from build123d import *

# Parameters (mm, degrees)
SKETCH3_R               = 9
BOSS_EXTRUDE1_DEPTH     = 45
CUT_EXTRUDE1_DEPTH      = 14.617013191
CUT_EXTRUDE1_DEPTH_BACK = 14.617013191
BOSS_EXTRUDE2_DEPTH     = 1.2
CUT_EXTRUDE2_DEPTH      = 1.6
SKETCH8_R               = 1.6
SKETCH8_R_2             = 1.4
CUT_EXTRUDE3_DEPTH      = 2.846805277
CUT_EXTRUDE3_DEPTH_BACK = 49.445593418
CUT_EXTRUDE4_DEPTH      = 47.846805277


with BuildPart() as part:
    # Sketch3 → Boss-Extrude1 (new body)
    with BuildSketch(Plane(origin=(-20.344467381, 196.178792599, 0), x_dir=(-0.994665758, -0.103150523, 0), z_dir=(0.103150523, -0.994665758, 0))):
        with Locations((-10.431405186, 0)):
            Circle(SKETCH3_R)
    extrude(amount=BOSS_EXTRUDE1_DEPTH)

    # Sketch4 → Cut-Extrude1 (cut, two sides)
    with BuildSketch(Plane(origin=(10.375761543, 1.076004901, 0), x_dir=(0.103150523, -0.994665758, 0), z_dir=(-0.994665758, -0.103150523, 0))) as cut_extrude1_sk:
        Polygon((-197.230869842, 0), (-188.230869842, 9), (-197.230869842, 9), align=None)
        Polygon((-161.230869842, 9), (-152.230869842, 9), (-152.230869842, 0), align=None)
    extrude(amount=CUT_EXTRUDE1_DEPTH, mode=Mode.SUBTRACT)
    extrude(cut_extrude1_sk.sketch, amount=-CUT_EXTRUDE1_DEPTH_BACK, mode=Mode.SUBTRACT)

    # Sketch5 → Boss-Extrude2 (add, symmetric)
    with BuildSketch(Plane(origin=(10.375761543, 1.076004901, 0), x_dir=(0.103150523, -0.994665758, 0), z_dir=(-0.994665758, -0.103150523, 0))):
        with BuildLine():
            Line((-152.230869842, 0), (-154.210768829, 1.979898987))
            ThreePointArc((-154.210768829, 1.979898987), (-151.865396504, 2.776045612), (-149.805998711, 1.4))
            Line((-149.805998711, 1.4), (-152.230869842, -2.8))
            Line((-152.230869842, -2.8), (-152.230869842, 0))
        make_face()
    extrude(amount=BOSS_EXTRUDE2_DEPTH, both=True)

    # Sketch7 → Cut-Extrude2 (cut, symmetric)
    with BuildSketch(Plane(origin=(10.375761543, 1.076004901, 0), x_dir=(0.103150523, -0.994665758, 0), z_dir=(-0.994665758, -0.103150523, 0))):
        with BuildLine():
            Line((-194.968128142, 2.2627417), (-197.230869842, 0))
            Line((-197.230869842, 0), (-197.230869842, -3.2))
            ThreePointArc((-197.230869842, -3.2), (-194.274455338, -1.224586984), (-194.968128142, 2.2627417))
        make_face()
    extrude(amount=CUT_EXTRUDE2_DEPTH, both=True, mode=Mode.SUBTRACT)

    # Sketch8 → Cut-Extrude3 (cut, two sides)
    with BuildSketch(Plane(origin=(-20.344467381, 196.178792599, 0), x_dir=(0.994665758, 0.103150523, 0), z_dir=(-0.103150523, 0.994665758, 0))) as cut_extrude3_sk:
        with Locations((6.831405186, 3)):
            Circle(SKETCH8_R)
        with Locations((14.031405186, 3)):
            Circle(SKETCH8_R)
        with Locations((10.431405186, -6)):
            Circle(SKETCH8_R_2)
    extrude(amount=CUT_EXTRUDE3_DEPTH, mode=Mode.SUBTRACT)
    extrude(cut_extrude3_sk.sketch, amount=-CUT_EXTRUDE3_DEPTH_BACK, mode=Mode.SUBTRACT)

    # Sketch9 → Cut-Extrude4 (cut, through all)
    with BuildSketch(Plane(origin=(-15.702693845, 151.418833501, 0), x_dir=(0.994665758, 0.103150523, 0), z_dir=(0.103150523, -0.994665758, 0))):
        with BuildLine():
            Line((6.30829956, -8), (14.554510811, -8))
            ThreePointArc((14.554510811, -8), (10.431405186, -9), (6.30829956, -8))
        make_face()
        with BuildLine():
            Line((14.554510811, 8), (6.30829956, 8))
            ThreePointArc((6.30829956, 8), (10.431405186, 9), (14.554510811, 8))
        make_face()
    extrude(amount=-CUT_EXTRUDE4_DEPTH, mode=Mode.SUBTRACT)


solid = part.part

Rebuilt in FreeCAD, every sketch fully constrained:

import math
import FreeCAD as App
import Part
import Sketcher
from FreeCAD import Vector
Q = App.Units.Quantity


def add_polygon(sketch, points):
    """Adds a closed chain of lines whose ends are joined by coincident constraints."""
    first, n = sketch.GeometryCount, len(points)
    for a, b in zip(points, points[1:] + points[:1]):
        sketch.addGeometry(Part.LineSegment(App.Vector(*a, 0), App.Vector(*b, 0)), False)
    for i in range(n):
        sketch.addConstraint(Sketcher.Constraint("Coincident", first + i, 2, first + (i + 1) % n, 1))

doc = App.newDocument("Part")
body = doc.addObject("PartDesign::Body", "Body")

sketch1 = body.newObject("Sketcher::SketchObject", "Sketch")
sketch1.Placement = App.Placement(Vector(-20.344467, 196.178793, 0), App.Rotation(Vector(-0.994665758, -0.103150523, 0), Vector(0, 0, -1.000000001), Vector(0.103150523, -0.994665758, 0), "ZXY"))
sketch1.addGeometry(Part.Circle(Vector(-10.431405, 0, 0), Vector(0, 0, 1), 9), False)
sketch1.addConstraint(Sketcher.Constraint("PointOnObject", 0, 3, -1))
sketch1.addConstraint(Sketcher.Constraint("Diameter", 0, Q("18 mm")))
sketch1.addConstraint(Sketcher.Constraint("DistanceX", 0, 3, -1, 1, Q("10.431405 mm")))
pad1 = body.newObject("PartDesign::Pad", "Pad")
pad1.Profile = sketch1
pad1.Length = 45

sketch2 = body.newObject("Sketcher::SketchObject", "Sketch001")
sketch2.Placement = App.Placement(Vector(10.375762, 1.076005, 0), App.Rotation(Vector(0.103150523, -0.994665758, 0), Vector(0, 0, 1.000000001), Vector(-0.994665758, -0.103150523, 0), "ZXY"))
add_polygon(sketch2, [(-197.23087, 0), (-188.23087, 9), (-197.23087, 9)])
add_polygon(sketch2, [(-152.23087, 9), (-161.23087, 9), (-152.23087, 0)])
sketch2.addConstraint(Sketcher.Constraint("Horizontal", 1))
sketch2.addConstraint(Sketcher.Constraint("Vertical", 2))
sketch2.addConstraint(Sketcher.Constraint("Horizontal", 3))
sketch2.addConstraint(Sketcher.Constraint("Vertical", 5))
sketch2.addConstraint(Sketcher.Constraint("PointOnObject", 2, 2, -1))
sketch2.addConstraint(Sketcher.Constraint("PointOnObject", 4, 2, -1))
sketch2.addConstraint(Sketcher.Constraint("Perpendicular", 0, 4))
sketch2.addConstraint(Sketcher.Constraint("Horizontal", 1, 2, 3, 2))
sketch2.addConstraint(Sketcher.Constraint("Equal", 1, 3))
sketch2.addConstraint(Sketcher.Constraint("DistanceX", 1, 2, 1, 1, Q("9 mm")))
sketch2.addConstraint(Sketcher.Constraint("DistanceX", 0, 2, 3, 2, Q("27 mm")))
sketch2.addConstraint(Sketcher.Constraint("DistanceX", 0, 2, -1, 1, Q("188.23087 mm")))
pocket1 = body.newObject("PartDesign::Pocket", "Pocket")
pocket1.Profile = sketch2
pocket1.Type = "ThroughAll"
pocket1.Midplane = True

sketch3 = body.newObject("Sketcher::SketchObject", "Sketch002")
sketch3.Placement = App.Placement(Vector(10.375762, 1.076005, 0), App.Rotation(Vector(0.103150523, -0.994665758, 0), Vector(0, 0, 1.000000001), Vector(-0.994665758, -0.103150523, 0), "ZXY"))
sketch3.addGeometry(Part.LineSegment(Vector(-154.210769, 1.979899, 0), Vector(-152.23087, 0, 0)), False)
sketch3.addGeometry(Part.LineSegment(Vector(-152.23087, 0, 0), Vector(-152.23087, -2.8, 0)), False)
sketch3.addGeometry(Part.LineSegment(Vector(-152.23087, -2.8, 0), Vector(-149.805999, 1.4, 0)), False)
sketch3.addGeometry(Part.ArcOfCircle(Part.Circle(Vector(-152.23087, 0, 0), Vector(0, 0, 1), 2.8), math.radians(30), math.radians(135)), False)
sketch3.addConstraint(Sketcher.Constraint("Coincident", 0, 2, 1, 1))
sketch3.addConstraint(Sketcher.Constraint("Coincident", 1, 2, 2, 1))
sketch3.addConstraint(Sketcher.Constraint("Coincident", 2, 2, 3, 1))
sketch3.addConstraint(Sketcher.Constraint("Coincident", 3, 2, 0, 1))
sketch3.addConstraint(Sketcher.Constraint("Vertical", 1))
sketch3.addConstraint(Sketcher.Constraint("Coincident", 0, 2, 3, 3))
sketch3.addConstraint(Sketcher.Constraint("PointOnObject", 3, 3, -1))
sketch3.addConstraint(Sketcher.Constraint("Radius", 3, Q("2.8 mm")))
sketch3.addConstraint(Sketcher.Constraint("Angle", 0, Q("-45 deg")))
sketch3.addConstraint(Sketcher.Constraint("Angle", 2, Q("60 deg")))
sketch3.addConstraint(Sketcher.Constraint("DistanceY", 1, 2, 1, 1, Q("2.8 mm")))
sketch3.addConstraint(Sketcher.Constraint("DistanceX", 2, 2, -1, 1, Q("149.805999 mm")))
pad2 = body.newObject("PartDesign::Pad", "Pad001")
pad2.Profile = sketch3
pad2.Length = 2.4
pad2.Midplane = True

sketch4 = body.newObject("Sketcher::SketchObject", "Sketch003")
sketch4.Placement = App.Placement(Vector(10.375762, 1.076005, 0), App.Rotation(Vector(0.103150523, -0.994665758, 0), Vector(0, 0, 1.000000001), Vector(-0.994665758, -0.103150523, 0), "ZXY"))
sketch4.addGeometry(Part.LineSegment(Vector(-194.968128, 2.262742, 0), Vector(-197.23087, 0, 0)), False)
sketch4.addGeometry(Part.LineSegment(Vector(-197.23087, 0, 0), Vector(-197.23087, -3.2, 0)), False)
sketch4.addGeometry(Part.ArcOfCircle(Part.Circle(Vector(-197.23087, 0, 0), Vector(0, 0, 1), 3.2), math.radians(-90), math.radians(45)), False)
sketch4.addConstraint(Sketcher.Constraint("Coincident", 0, 2, 1, 1))
sketch4.addConstraint(Sketcher.Constraint("Coincident", 1, 2, 2, 1))
sketch4.addConstraint(Sketcher.Constraint("Coincident", 2, 2, 0, 1))
sketch4.addConstraint(Sketcher.Constraint("Vertical", 1))
sketch4.addConstraint(Sketcher.Constraint("Coincident", 0, 2, 2, 3))
sketch4.addConstraint(Sketcher.Constraint("PointOnObject", 2, 3, -1))
sketch4.addConstraint(Sketcher.Constraint("Radius", 2, Q("3.2 mm")))
sketch4.addConstraint(Sketcher.Constraint("Angle", 0, Q("-135 deg")))
sketch4.addConstraint(Sketcher.Constraint("DistanceX", 2, 3, -1, 1, Q("197.23087 mm")))
pocket2 = body.newObject("PartDesign::Pocket", "Pocket001")
pocket2.Profile = sketch4
pocket2.Length = 3.2
pocket2.Midplane = True

sketch5 = body.newObject("Sketcher::SketchObject", "Sketch004")
sketch5.Placement = App.Placement(Vector(-20.344467, 196.178793, 0), App.Rotation(Vector(0.994665758, 0.103150523, 0), Vector(0, 0, -1.000000001), Vector(-0.103150523, 0.994665758, 0), "ZXY"))
sketch5.addGeometry(Part.Circle(Vector(6.831405, 3, 0), Vector(0, 0, 1), 1.6), False)
sketch5.addGeometry(Part.Circle(Vector(14.031405, 3, 0), Vector(0, 0, 1), 1.6), False)
sketch5.addGeometry(Part.Circle(Vector(10.431405, -6, 0), Vector(0, 0, 1), 1.4), False)
sketch5.addConstraint(Sketcher.Constraint("Equal", 0, 1))
sketch5.addConstraint(Sketcher.Constraint("Horizontal", 0, 3, 1, 3))
sketch5.addConstraint(Sketcher.Constraint("Diameter", 0, Q("3.2 mm")))
sketch5.addConstraint(Sketcher.Constraint("Diameter", 2, Q("2.8 mm")))
sketch5.addConstraint(Sketcher.Constraint("DistanceY", -1, 1, 0, 3, Q("3 mm")))
sketch5.addConstraint(Sketcher.Constraint("DistanceY", 2, 3, -1, 1, Q("6 mm")))
sketch5.addConstraint(Sketcher.Constraint("DistanceX", 0, 3, 1, 3, Q("7.2 mm")))
sketch5.addConstraint(Sketcher.Constraint("DistanceX", 2, 3, 1, 3, Q("3.6 mm")))
sketch5.addConstraint(Sketcher.Constraint("DistanceX", -1, 1, 0, 3, Q("6.831405 mm")))
pocket3 = body.newObject("PartDesign::Pocket", "Pocket002")
pocket3.Profile = sketch5
pocket3.Type = "ThroughAll"
pocket3.Midplane = True

sketch6 = body.newObject("Sketcher::SketchObject", "Sketch005")
sketch6.Placement = App.Placement(Vector(-15.702694, 151.418834, 0), App.Rotation(Vector(0.994665758, 0.103150523, 0), Vector(0, 0, 1.000000001), Vector(0.103150523, -0.994665758, 0), "ZXY"))
sketch6.addGeometry(Part.LineSegment(Vector(14.554511, -8, 0), Vector(6.3083, -8, 0)), False)
sketch6.addGeometry(Part.ArcOfCircle(Part.Circle(Vector(10.431405, 0, 0), Vector(0, 0, 1), 9), math.radians(-117.266044), math.radians(-62.733956)), False)
sketch6.addGeometry(Part.LineSegment(Vector(6.3083, 8, 0), Vector(14.554511, 8, 0)), False)
sketch6.addGeometry(Part.ArcOfCircle(Part.Circle(Vector(10.431405, 0, 0), Vector(0, 0, 1), 9), math.radians(62.733956), math.radians(117.266044)), False)
sketch6.addConstraint(Sketcher.Constraint("Coincident", 0, 1, 1, 2))
sketch6.addConstraint(Sketcher.Constraint("Coincident", 1, 1, 0, 2))
sketch6.addConstraint(Sketcher.Constraint("Coincident", 2, 1, 3, 2))
sketch6.addConstraint(Sketcher.Constraint("Coincident", 3, 1, 2, 2))
sketch6.addConstraint(Sketcher.Constraint("Horizontal", 0))
sketch6.addConstraint(Sketcher.Constraint("Horizontal", 2))
sketch6.addConstraint(Sketcher.Constraint("Coincident", 3, 3, 1, 3))
sketch6.addConstraint(Sketcher.Constraint("Equal", 1, 3))
sketch6.addConstraint(Sketcher.Constraint("Symmetric", 1, 1, 2, 1, -1))
sketch6.addConstraint(Sketcher.Constraint("Radius", 1, Q("9 mm")))
sketch6.addConstraint(Sketcher.Constraint("DistanceY", 0, 1, -1, 1, Q("8 mm")))
sketch6.addConstraint(Sketcher.Constraint("DistanceX", -1, 1, 1, 1, Q("6.3083 mm")))
pocket4 = body.newObject("PartDesign::Pocket", "Pocket003")
pocket4.Profile = sketch6
pocket4.Type = "ThroughAll"

doc.recompute()
